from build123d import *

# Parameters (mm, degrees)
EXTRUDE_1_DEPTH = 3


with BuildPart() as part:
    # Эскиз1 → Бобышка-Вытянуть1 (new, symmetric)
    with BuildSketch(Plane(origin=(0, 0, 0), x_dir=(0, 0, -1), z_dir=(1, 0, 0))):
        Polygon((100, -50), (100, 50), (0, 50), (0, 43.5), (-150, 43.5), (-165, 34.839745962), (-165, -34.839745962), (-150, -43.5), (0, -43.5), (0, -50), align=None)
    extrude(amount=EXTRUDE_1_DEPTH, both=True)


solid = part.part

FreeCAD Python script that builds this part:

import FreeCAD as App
import Part
import Sketcher
from FreeCAD import Vector
Q = App.Units.Quantity

doc = App.newDocument("Part")
body = doc.addObject("PartDesign::Body", "Body")

sketch1 = body.newObject("Sketcher::SketchObject", "Sketch")
sketch1.AttachmentSupport = (doc.getObject("YZ_Plane"), [""])
sketch1.MapMode = "FlatFace"
sketch1.addGeometry([
    Part.LineSegment(Vector(-50, -100, 0), Vector(50, -100, 0)),
    Part.LineSegment(Vector(50, -100, 0), Vector(50, 0, 0)),
    Part.LineSegment(Vector(50, 0, 0), Vector(44, 0, 0)),
    Part.LineSegment(Vector(44, 0, 0), Vector(44, 150, 0)),
    Part.LineSegment(Vector(44, 150, 0), Vector(35, 165, 0)),
    Part.LineSegment(Vector(35, 165, 0), Vector(-35, 165, 0)),
    Part.LineSegment(Vector(-35, 165, 0), Vector(-44, 150, 0)),
    Part.LineSegment(Vector(-44, 150, 0), Vector(-44, 0, 0)),
    Part.LineSegment(Vector(-44, 0, 0), Vector(-50, 0, 0)),
    Part.LineSegment(Vector(-50, 0, 0), Vector(-50, -100, 0)),
], False)
sketch1.addConstraint([
    Sketcher.Constraint("Coincident", 0, 2, 1, 1),
    Sketcher.Constraint("Coincident", 1, 2, 2, 1),
    Sketcher.Constraint("Coincident", 2, 2, 3, 1),
    Sketcher.Constraint("Coincident", 3, 2, 4, 1),
    Sketcher.Constraint("Coincident", 4, 2, 5, 1),
    Sketcher.Constraint("Coincident", 5, 2, 6, 1),
    Sketcher.Constraint("Coincident", 6, 2, 7, 1),
    Sketcher.Constraint("Coincident", 7, 2, 8, 1),
    Sketcher.Constraint("Coincident", 8, 2, 9, 1),
    Sketcher.Constraint("Coincident", 9, 2, 0, 1),
    Sketcher.Constraint("Horizontal", 0),
    Sketcher.Constraint("Vertical", 1),
    Sketcher.Constraint("Horizontal", 2),
    Sketcher.Constraint("Vertical", 3),
    Sketcher.Constraint("Horizontal", 5),
    Sketcher.Constraint("Vertical", 7),
    Sketcher.Constraint("Horizontal", 8),
    Sketcher.Constraint("Vertical", 9),
    Sketcher.Constraint("Symmetric", 2, 2, 7, 2, -1, 1),
    Sketcher.Constraint("Symmetric", 1, 2, 8, 2, -2),
    Sketcher.Constraint("Horizontal", 3, 2, 6, 2),
    Sketcher.Constraint("Equal", 0, 1),
    Sketcher.Constraint("Equal", 4, 6),
    Sketcher.Constraint("DistanceX", 0, 1, 0, 2, Q("100 mm")),
    Sketcher.Constraint("DistanceY", 3, 1, 3, 2, Q("150 mm")),
    Sketcher.Constraint("Angle", 4, Q("120 deg")),
    Sketcher.Constraint("DistanceX", 2, 2, 2, 1, Q("6.5 mm")),
    Sketcher.Constraint("DistanceY", -1, 1, 4, 2, Q("165 mm")),
])
pad1 = body.newObject("PartDesign::Pad", "Pad")
pad1.Profile = sketch1
pad1.Length = 6
pad1.Midplane = True

doc.recompute()
